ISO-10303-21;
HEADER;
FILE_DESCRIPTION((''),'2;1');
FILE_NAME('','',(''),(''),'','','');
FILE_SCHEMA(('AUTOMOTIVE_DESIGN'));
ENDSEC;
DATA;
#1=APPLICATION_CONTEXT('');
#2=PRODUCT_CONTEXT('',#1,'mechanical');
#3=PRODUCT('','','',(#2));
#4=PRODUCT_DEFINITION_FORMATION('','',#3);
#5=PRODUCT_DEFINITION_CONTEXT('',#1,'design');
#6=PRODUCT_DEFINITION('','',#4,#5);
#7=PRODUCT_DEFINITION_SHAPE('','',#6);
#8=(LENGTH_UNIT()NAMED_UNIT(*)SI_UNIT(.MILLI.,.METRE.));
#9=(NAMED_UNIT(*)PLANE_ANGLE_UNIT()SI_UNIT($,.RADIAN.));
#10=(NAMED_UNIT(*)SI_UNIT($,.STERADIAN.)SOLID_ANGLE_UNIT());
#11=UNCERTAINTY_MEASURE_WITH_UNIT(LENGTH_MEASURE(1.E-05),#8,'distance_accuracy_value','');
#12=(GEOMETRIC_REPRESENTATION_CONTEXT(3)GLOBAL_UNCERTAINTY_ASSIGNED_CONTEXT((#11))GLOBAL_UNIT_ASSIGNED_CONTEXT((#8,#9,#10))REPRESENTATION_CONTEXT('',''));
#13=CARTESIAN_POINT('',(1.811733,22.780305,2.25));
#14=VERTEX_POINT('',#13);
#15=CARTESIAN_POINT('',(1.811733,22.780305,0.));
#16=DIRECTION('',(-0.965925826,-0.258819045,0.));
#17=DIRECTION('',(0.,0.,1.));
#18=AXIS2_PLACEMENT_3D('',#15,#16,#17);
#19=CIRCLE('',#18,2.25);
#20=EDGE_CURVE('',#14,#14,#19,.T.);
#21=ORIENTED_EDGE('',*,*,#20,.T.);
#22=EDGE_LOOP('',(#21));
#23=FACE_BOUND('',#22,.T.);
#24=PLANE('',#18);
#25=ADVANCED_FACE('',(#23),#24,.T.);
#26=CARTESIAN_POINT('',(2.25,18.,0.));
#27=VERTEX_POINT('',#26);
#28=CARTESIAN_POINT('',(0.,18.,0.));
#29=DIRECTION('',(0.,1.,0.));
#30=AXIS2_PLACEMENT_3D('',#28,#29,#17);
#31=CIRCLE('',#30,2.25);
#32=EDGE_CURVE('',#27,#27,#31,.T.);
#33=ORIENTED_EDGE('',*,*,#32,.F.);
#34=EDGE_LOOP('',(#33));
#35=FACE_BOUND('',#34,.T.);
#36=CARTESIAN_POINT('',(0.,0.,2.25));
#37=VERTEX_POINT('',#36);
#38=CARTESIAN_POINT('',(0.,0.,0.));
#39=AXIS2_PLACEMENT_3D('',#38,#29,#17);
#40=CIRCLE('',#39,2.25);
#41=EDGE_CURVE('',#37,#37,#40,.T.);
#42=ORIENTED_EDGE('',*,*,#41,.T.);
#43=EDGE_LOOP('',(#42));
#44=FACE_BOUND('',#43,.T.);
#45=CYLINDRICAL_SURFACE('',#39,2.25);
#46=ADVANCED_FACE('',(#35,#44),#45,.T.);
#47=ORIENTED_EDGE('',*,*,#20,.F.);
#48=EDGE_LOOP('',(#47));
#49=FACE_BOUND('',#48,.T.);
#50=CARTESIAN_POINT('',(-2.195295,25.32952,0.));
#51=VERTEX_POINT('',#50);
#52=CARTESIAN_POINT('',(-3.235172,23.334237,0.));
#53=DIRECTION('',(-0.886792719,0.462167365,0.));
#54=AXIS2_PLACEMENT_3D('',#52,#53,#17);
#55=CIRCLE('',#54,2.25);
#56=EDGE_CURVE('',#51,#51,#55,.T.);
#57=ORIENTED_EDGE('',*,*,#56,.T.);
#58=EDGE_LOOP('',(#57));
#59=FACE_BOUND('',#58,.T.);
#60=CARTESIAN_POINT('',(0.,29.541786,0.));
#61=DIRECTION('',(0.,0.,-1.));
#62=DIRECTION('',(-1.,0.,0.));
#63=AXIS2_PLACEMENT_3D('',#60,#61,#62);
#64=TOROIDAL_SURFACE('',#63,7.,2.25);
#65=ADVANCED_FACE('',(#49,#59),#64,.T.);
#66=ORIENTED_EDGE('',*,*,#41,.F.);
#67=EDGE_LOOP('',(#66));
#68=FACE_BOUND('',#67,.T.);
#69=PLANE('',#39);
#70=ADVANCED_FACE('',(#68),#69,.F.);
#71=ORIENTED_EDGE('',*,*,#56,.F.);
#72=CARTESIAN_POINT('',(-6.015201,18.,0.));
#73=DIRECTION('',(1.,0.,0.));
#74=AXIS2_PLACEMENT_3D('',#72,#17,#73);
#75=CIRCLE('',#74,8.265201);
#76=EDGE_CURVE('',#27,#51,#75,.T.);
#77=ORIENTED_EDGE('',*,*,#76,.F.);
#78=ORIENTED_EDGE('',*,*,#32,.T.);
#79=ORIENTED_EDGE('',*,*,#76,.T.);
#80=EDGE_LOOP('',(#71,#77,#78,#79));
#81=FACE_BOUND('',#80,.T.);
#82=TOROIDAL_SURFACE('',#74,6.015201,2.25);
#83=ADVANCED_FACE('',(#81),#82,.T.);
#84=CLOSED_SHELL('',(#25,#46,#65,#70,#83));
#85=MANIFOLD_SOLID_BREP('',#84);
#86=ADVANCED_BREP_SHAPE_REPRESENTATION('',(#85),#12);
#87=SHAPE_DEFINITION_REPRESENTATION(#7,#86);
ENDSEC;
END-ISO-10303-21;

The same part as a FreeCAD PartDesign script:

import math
import FreeCAD as App
import Part
import Sketcher

V = App.Vector

doc = App.newDocument("Part")
body = doc.addObject("PartDesign::Body", "Body")

# Sketch on XZ plane
sketch1 = doc.addObject("Sketcher::SketchObject", "Sketch")
body.addObject(sketch1)
sketch1.AttachmentSupport = (doc.XZ_Plane, [""])
sketch1.MapMode = "FlatFace"
sketch1.addGeometry(Part.Circle(V(0, 0, 0), V(0, 0, 1), 2.2), False)
sketch1.addConstraint(Sketcher.Constraint("Coincident", 0, 3, -1, 1))
sketch1.addConstraint(Sketcher.Constraint("Diameter", 0, 4.5))

# Sketch on XY plane
sketch2 = doc.addObject("Sketcher::SketchObject", "Sketch001")
body.addObject(sketch2)
sketch2.AttachmentSupport = (doc.XY_Plane, [""])
sketch2.MapMode = "FlatFace"
sketch2.addGeometry(Part.LineSegment(V(0, 0, 0), V(0, 18, 0)), False)
sketch2.addGeometry(Part.ArcOfCircle(Part.Circle(V(-6, 18, 0), V(0, 0, 1), 6), math.radians(0), math.radians(62)), False)
sketch2.addGeometry(Part.ArcOfCircle(Part.Circle(V(0, 30, 0), V(0, 0, 1), 7), math.radians(-75), math.radians(242)), False)
sketch2.addConstraint(Sketcher.Constraint("Tangent", 0, 2, 1, 1))
sketch2.addConstraint(Sketcher.Constraint("Tangent", 1, 2, 2, 2))
sketch2.addConstraint(Sketcher.Constraint("Vertical", 0))
sketch2.addConstraint(Sketcher.Constraint("Coincident", 0, 1, -1, 1))
sketch2.addConstraint(Sketcher.Constraint("PointOnObject", 2, 3, -2))
sketch2.addConstraint(Sketcher.Constraint("Radius", 2, 7.0))
sketch2.addConstraint(Sketcher.Constraint("DistanceY", 0, 1, 0, 2, 18.0))
sketch2.addConstraint(Sketcher.Constraint("Radius", 1, 6.015201))
sketch2.addConstraint(Sketcher.Constraint("DistanceY", 2, 1, 1, 2, 0.553932))
doc.recompute()

additivepipe = doc.addObject("PartDesign::AdditivePipe", "AdditivePipe")
body.addObject(additivepipe)
additivepipe.Profile = sketch1
additivepipe.Spine = (sketch2, ["Edge1", "Edge2", "Edge3"])

doc.recompute()
